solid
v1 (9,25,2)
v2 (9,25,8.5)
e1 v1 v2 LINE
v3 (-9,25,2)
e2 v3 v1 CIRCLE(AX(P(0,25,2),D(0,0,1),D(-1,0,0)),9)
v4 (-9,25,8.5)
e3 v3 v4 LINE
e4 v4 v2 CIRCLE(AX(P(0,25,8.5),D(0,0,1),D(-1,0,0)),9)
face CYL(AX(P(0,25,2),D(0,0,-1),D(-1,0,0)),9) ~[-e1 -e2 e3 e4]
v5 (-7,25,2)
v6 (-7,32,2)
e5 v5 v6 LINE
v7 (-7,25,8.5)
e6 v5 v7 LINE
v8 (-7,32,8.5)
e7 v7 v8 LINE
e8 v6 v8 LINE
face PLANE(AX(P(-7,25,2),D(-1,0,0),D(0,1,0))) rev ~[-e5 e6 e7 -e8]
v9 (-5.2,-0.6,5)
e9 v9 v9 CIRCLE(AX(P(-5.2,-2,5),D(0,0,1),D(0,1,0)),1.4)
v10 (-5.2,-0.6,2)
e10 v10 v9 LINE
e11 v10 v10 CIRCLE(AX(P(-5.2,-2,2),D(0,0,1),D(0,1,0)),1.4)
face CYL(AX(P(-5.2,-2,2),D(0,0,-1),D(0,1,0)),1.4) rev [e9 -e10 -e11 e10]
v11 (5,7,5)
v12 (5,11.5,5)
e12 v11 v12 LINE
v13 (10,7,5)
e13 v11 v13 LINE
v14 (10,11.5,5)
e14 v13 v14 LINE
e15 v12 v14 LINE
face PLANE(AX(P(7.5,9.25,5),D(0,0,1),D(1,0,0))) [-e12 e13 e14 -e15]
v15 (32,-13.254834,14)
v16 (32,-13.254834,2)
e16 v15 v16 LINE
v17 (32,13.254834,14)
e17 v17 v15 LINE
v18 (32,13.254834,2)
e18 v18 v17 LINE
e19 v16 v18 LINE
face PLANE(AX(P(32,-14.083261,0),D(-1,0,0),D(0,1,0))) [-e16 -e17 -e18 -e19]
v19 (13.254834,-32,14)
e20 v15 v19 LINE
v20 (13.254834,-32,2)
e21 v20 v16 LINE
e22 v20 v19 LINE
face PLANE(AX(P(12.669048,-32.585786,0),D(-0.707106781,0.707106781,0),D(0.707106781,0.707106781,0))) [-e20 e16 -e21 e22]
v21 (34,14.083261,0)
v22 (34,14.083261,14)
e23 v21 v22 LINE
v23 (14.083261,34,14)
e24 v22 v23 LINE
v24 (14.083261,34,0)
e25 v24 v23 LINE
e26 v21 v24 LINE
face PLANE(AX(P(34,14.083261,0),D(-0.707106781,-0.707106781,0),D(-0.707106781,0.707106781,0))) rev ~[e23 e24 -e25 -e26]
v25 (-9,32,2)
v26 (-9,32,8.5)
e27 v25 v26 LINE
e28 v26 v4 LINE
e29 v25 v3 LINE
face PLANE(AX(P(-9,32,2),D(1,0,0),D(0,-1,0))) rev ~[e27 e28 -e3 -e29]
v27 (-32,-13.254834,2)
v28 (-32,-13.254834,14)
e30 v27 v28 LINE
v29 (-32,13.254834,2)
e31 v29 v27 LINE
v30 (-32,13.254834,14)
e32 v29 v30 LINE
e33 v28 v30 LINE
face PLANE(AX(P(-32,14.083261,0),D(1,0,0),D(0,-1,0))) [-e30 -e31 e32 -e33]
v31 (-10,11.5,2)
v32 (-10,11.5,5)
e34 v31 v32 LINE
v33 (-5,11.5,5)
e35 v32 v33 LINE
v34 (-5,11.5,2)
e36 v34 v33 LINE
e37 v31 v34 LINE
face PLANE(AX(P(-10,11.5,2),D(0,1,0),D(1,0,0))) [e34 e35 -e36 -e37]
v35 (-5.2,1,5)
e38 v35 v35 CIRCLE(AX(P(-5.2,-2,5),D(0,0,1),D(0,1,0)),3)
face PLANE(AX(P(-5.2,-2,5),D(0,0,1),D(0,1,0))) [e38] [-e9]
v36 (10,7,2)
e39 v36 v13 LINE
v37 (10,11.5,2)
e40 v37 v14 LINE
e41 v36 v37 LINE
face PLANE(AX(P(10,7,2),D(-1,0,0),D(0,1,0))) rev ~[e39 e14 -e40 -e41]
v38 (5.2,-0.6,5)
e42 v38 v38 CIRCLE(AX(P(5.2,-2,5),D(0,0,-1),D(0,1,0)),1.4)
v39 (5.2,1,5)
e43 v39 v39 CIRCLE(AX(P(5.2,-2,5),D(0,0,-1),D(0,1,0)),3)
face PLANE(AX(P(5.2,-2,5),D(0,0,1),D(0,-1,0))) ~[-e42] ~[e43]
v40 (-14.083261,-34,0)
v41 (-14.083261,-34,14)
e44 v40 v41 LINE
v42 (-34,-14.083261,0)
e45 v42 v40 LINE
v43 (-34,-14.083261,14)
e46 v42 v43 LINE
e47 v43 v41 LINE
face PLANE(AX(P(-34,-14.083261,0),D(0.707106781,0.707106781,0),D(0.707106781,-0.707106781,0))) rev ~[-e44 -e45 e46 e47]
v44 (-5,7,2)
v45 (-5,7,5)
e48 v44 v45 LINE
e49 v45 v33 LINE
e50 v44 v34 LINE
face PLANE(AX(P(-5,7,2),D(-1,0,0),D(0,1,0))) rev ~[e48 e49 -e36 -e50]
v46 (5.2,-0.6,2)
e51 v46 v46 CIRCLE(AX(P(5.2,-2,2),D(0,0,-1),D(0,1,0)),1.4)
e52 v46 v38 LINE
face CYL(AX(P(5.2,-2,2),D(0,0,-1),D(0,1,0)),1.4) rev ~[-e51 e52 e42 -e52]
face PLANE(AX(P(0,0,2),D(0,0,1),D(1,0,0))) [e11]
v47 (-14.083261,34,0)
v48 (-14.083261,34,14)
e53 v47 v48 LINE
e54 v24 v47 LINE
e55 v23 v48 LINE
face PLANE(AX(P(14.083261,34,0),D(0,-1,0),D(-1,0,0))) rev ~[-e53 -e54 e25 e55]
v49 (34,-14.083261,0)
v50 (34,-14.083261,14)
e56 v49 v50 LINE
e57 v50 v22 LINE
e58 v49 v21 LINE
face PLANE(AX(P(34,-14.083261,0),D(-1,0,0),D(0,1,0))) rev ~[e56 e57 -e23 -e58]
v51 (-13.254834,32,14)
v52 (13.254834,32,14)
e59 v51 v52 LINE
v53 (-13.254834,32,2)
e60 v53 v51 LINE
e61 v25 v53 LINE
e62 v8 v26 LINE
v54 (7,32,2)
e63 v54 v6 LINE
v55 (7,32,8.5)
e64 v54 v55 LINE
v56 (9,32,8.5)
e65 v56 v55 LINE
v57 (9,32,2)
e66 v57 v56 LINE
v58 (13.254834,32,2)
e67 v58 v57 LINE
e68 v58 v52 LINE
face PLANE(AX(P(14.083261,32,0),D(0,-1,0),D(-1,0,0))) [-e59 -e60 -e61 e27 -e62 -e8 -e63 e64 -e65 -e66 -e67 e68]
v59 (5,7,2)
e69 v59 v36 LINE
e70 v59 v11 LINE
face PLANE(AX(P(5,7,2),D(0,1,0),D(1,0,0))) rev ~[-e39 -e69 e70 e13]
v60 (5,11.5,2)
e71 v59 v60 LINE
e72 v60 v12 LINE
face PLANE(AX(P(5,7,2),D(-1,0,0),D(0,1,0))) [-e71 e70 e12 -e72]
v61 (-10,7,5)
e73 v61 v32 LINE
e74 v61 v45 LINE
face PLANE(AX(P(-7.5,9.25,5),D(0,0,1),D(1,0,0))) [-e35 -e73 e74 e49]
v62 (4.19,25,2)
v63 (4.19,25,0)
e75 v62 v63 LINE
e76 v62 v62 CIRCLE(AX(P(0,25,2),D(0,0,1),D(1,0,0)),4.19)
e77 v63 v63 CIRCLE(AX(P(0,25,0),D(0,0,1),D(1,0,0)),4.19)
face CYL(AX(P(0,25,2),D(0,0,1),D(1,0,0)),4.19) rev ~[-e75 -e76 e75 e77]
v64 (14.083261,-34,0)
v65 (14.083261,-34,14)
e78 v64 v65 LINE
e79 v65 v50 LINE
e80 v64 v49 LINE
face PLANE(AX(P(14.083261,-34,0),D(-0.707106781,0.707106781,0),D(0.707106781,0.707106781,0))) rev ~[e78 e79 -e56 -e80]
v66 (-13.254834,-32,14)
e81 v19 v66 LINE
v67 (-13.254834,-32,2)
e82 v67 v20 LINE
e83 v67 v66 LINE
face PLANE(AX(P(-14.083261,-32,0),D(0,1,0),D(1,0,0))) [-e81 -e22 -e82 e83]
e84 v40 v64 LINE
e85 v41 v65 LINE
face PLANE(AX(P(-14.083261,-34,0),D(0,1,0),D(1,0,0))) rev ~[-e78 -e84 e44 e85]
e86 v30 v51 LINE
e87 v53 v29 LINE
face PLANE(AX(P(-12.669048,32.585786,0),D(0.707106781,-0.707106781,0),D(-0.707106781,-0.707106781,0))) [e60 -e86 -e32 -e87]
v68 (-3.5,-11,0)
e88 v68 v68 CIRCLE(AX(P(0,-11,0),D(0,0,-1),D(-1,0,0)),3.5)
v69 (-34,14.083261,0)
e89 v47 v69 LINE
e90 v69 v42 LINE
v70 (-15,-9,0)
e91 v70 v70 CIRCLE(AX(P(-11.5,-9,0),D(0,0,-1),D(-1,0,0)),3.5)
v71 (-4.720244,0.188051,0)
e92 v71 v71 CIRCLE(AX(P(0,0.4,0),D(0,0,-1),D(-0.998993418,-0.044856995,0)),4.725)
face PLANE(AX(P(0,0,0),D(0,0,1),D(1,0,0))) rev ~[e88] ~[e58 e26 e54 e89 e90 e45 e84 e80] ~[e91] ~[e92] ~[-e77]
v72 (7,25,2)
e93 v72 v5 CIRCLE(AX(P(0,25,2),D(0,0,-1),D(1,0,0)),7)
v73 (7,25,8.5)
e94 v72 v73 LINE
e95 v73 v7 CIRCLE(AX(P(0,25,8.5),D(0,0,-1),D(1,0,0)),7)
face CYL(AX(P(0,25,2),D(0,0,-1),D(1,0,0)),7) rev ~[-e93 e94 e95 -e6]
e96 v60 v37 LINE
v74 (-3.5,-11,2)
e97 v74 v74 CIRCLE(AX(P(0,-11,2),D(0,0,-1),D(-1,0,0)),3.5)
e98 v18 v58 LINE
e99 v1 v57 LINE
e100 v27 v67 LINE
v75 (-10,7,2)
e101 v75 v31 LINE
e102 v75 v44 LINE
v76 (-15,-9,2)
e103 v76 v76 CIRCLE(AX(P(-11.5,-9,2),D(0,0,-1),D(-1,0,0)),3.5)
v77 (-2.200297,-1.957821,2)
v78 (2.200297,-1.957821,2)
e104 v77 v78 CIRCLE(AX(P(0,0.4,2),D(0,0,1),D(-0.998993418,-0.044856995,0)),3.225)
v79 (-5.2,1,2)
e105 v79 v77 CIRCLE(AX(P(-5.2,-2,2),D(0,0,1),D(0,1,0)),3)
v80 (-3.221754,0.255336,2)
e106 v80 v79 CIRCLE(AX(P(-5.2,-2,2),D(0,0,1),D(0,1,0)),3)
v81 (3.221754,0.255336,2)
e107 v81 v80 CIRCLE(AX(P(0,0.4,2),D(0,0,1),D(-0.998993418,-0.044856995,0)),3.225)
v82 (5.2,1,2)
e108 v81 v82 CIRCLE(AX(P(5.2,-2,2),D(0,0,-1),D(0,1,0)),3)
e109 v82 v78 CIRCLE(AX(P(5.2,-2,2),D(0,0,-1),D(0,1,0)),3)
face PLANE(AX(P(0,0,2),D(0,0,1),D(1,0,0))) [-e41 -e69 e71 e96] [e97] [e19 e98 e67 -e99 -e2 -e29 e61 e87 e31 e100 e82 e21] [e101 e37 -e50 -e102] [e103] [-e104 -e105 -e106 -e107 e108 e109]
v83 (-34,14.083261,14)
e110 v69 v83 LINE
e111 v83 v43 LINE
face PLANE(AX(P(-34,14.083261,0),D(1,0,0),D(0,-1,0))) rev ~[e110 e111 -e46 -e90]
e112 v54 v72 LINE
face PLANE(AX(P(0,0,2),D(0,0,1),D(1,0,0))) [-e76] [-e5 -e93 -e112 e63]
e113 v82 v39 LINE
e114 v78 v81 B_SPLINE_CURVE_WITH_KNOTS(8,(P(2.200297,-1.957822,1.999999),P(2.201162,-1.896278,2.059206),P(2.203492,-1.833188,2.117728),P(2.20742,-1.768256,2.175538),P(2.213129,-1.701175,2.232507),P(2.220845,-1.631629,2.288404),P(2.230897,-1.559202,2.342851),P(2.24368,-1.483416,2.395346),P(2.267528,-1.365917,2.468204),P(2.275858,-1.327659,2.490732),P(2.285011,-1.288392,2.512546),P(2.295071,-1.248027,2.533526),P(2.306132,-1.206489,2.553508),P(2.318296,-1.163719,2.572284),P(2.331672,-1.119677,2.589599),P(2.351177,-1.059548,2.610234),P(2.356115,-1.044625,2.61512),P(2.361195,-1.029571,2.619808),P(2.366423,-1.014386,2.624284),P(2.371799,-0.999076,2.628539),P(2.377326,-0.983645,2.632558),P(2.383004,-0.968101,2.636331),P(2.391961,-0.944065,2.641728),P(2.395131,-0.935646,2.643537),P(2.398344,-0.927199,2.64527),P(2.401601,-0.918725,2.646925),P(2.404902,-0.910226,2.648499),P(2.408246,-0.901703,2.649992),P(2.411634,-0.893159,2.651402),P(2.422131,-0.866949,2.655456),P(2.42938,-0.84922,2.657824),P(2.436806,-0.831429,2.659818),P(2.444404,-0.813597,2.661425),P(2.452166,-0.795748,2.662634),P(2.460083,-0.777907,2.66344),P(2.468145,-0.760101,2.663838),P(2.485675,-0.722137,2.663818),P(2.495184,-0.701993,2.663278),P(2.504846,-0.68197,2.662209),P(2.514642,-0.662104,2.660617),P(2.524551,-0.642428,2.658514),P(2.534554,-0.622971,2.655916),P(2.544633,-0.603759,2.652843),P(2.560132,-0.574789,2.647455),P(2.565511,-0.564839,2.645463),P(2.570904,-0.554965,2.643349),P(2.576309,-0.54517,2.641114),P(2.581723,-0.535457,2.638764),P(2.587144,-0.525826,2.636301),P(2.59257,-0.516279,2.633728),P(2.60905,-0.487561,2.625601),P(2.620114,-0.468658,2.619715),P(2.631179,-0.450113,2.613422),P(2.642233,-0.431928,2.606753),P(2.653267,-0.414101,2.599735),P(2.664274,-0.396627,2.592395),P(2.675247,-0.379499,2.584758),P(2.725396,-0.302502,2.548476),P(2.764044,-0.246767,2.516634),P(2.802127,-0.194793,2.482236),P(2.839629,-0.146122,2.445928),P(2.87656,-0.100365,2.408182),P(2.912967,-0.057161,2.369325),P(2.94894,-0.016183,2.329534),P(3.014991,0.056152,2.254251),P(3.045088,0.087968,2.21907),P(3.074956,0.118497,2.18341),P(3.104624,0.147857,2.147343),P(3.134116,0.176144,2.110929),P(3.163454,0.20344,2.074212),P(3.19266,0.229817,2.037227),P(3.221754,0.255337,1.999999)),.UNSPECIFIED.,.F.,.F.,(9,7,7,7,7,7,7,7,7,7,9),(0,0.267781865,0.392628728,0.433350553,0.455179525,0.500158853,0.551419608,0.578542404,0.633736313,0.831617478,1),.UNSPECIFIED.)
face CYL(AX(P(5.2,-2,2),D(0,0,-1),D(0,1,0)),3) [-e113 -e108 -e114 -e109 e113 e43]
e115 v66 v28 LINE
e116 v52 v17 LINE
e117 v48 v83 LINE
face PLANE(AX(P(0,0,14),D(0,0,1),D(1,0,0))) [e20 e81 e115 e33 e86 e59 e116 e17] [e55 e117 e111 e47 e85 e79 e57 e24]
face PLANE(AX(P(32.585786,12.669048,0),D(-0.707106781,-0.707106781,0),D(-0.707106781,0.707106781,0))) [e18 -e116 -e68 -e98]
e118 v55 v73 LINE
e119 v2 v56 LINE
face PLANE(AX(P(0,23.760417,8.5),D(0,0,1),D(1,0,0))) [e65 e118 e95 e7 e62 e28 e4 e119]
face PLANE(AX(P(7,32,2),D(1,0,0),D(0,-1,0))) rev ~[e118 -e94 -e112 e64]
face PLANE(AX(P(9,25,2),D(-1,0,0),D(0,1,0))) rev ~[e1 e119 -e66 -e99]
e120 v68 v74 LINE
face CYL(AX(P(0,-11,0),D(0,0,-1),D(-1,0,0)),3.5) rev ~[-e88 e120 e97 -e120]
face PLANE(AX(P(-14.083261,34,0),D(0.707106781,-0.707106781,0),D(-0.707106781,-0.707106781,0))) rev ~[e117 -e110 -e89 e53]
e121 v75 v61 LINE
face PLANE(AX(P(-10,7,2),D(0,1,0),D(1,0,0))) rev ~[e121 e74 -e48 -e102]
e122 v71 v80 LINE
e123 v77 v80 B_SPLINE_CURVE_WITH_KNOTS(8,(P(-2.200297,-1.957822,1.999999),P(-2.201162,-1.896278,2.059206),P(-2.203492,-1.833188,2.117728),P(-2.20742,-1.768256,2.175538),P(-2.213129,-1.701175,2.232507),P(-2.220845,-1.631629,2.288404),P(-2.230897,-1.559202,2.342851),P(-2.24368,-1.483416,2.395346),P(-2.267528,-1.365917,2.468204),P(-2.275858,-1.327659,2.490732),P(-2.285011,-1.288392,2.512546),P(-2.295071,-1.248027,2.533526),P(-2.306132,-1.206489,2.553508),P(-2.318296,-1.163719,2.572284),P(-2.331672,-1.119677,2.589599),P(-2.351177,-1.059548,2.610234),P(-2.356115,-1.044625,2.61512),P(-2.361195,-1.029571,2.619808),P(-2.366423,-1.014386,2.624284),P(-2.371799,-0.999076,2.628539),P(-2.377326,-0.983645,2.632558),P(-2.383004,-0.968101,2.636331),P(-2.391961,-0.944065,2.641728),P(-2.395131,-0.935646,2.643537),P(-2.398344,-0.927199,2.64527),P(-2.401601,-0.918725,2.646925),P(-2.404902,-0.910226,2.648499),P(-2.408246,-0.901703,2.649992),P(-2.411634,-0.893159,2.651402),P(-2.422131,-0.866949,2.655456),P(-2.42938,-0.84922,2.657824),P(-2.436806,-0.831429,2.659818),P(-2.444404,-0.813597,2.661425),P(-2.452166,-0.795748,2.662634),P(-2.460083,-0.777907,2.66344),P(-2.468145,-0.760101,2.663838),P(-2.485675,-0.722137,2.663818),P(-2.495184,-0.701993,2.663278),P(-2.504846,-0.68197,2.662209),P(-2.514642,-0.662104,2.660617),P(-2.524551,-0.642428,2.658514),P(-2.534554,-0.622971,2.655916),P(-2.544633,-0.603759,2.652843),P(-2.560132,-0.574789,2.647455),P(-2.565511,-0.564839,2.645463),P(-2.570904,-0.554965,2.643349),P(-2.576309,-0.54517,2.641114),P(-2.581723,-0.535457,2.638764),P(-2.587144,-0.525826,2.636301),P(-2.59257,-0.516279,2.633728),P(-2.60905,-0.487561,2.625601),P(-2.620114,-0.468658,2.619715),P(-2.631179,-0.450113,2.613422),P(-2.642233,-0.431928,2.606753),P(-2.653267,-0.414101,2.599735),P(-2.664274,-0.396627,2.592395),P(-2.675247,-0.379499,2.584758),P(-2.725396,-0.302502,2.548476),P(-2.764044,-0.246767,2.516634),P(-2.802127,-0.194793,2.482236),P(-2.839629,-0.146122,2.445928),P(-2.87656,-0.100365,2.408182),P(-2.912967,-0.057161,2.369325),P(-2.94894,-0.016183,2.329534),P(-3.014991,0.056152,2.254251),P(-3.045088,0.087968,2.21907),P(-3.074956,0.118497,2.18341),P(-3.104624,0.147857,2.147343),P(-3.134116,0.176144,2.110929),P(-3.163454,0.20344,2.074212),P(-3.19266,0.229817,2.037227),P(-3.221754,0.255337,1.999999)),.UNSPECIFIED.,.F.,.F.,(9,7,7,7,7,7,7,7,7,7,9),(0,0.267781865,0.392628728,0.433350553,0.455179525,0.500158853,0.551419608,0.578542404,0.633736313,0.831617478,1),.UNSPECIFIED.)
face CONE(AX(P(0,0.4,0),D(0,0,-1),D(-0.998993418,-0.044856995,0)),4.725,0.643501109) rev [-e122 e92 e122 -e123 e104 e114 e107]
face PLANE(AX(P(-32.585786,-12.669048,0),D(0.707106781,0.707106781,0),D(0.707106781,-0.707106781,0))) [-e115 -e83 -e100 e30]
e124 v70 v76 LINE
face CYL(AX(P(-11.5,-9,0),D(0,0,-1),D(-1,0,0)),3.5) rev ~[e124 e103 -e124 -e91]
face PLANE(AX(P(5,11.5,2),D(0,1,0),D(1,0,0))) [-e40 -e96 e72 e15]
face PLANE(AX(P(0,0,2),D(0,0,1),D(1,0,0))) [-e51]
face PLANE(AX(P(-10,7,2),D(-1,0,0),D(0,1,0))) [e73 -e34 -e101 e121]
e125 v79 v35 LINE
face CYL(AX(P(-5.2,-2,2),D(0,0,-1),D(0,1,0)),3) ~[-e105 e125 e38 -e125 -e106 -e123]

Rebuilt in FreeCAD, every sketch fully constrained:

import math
import FreeCAD as App
import Part
import Sketcher

V = App.Vector


def faces_at(feature, points):
    """Names of the faces that lie closest to the given points."""
    faces = feature.Shape.Faces
    near = lambda p: min(range(len(faces)), key=lambda i: faces[i].distToShape(Part.Vertex(*p))[0])
    return sorted({f"Face{near(p) + 1}" for p in points})


def add_polygon(sketch, points):
    """Adds a closed chain of lines whose ends are joined by coincident constraints."""
    first, n = sketch.GeometryCount, len(points)
    for a, b in zip(points, points[1:] + points[:1]):
        sketch.addGeometry(Part.LineSegment(App.Vector(*a, 0), App.Vector(*b, 0)), False)
    for i in range(n):
        sketch.addConstraint(Sketcher.Constraint("Coincident", first + i, 2, first + (i + 1) % n, 1))

doc = App.newDocument("Part")
body = doc.addObject("PartDesign::Body", "Body")

sketch1 = body.newObject("Sketcher::SketchObject", "Sketch")
sketch1.AttachmentSupport = (doc.getObject("XY_Plane"), [""])
sketch1.MapMode = "FlatFace"
add_polygon(sketch1, [(34, -14.083261), (34, 14.083261), (14.083261, 34), (-14.083261, 34), (-34, 14.083261), (-34, -14.083261), (-14.083261, -34), (14.083261, -34)])
sketch1.addConstraint([
    Sketcher.Constraint("Vertical", 0),
    Sketcher.Constraint("Horizontal", 2),
    Sketcher.Constraint("Vertical", 4),
    Sketcher.Constraint("Horizontal", 6),
    Sketcher.Constraint("Symmetric", 0, 2, 4, 2, -1, 1),
    Sketcher.Constraint("Symmetric", 1, 2, 5, 2, -1, 1),
    Sketcher.Constraint("Perpendicular", 1, 3),
    Sketcher.Constraint("Perpendicular", 5, 7),
    Sketcher.Constraint("Horizontal", 0, 2, 3, 2),
    Sketcher.Constraint("Horizontal", 4, 2, 7, 2),
    Sketcher.Constraint("Vertical", 2, 2, 5, 2),
    Sketcher.Constraint("Equal", 6, 0),
    Sketcher.Constraint("DistanceX", -1, 1, 0, 2, 34.0),
    Sketcher.Constraint("DistanceX", 2, 2, 2, 1, 28.166522),
])
pad1 = body.newObject("PartDesign::Pad", "Pad")
pad1.Profile = sketch1
pad1.Length = 14
doc.recompute()

thickness = body.newObject("PartDesign::Thickness", "Thickness")
thickness.Base = (pad1, faces_at(pad1, [(0, 0, 14)]))
thickness.Value = 2
thickness.Reversed = True
thickness.Join = "Intersection"

sketch2 = body.newObject("Sketcher::SketchObject", "Sketch001")
sketch2.AttachmentSupport = (doc.getObject("XY_Plane"), [""])
sketch2.MapMode = "FlatFace"
sketch2.AttachmentOffset = App.Placement(V(0, 0, 2), App.Rotation())
sketch2.addGeometry([
    Part.LineSegment(V(7, 32, 0), V(7, 25, 0)),
    Part.ArcOfCircle(Part.Circle(V(0, 25, 0), V(0, 0, 1), 7), math.radians(180), math.radians(360)),
    Part.LineSegment(V(-7, 25, 0), V(-7, 32, 0)),
    Part.LineSegment(V(-7, 32, 0), V(-9, 32, 0)),
    Part.LineSegment(V(-9, 32, 0), V(-9, 25, 0)),
    Part.ArcOfCircle(Part.Circle(V(0, 25, 0), V(0, 0, 1), 9), math.radians(180), math.radians(360)),
    Part.LineSegment(V(9, 25, 0), V(9, 32, 0)),
    Part.LineSegment(V(9, 32, 0), V(7, 32, 0)),
], False)
sketch2.addConstraint([
    Sketcher.Constraint("Tangent", 0, 2, 1, 2),
    Sketcher.Constraint("Tangent", 1, 1, 2, 1),
    Sketcher.Constraint("Coincident", 2, 2, 3, 1),
    Sketcher.Constraint("Coincident", 3, 2, 4, 1),
    Sketcher.Constraint("Tangent", 4, 2, 5, 1),
    Sketcher.Constraint("Tangent", 5, 2, 6, 1),
    Sketcher.Constraint("Coincident", 6, 2, 7, 1),
    Sketcher.Constraint("Coincident", 7, 2, 0, 1),
    Sketcher.Constraint("Vertical", 0),
    Sketcher.Constraint("Vertical", 2),
    Sketcher.Constraint("Horizontal", 3),
    Sketcher.Constraint("Vertical", 4),
    Sketcher.Constraint("Vertical", 6),
    Sketcher.Constraint("Horizontal", 7),
    Sketcher.Constraint("Coincident", 5, 3, 1, 3),
    Sketcher.Constraint("Symmetric", 3, 2, 6, 2, -2),
    Sketcher.Constraint("Radius", 1, 7.0),
    Sketcher.Constraint("Radius", 5, 9.0),
    Sketcher.Constraint("DistanceY", 0, 2, 0, 1, 7.0),
    Sketcher.Constraint("DistanceY", -1, 1, 1, 3, 25.0),
])
pad2 = body.newObject("PartDesign::Pad", "Pad001")
pad2.Profile = sketch2
pad2.Length = 6.5

sketch3 = body.newObject("Sketcher::SketchObject", "Sketch002")
sketch3.AttachmentSupport = (doc.getObject("XY_Plane"), [""])
sketch3.MapMode = "FlatFace"
sketch3.AttachmentOffset = App.Placement(V(0, 0, 2), App.Rotation())
sketch3.addGeometry(Part.Circle(V(0, 25, 0), V(0, 0, 1), 4.19), False)
sketch3.addConstraint([
    Sketcher.Constraint("PointOnObject", 0, 3, -2),
    Sketcher.Constraint("Diameter", 0, 8.38),
    Sketcher.Constraint("DistanceY", -1, 1, 0, 3, 25.0),
])
pocket1 = body.newObject("PartDesign::Pocket", "Pocket")
pocket1.Profile = sketch3
pocket1.Type = "ThroughAll"

sketch4 = body.newObject("Sketcher::SketchObject", "Sketch003")
sketch4.AttachmentSupport = (doc.getObject("XY_Plane"), [""])
sketch4.MapMode = "FlatFace"
sketch4.AttachmentOffset = App.Placement(V(0, 0, 2), App.Rotation())
sketch4.addGeometry([
    Part.Circle(V(-5.2, -2, 0), V(0, 0, 1), 3),
    Part.Circle(V(-5.2, -2, 0), V(0, 0, 1), 1.4),
], False)
sketch4.addConstraint([
    Sketcher.Constraint("Coincident", 1, 3, 0, 3),
    Sketcher.Constraint("Diameter", 0, 6.0),
    Sketcher.Constraint("Diameter", 1, 2.8),
    Sketcher.Constraint("DistanceY", 0, 3, -1, 1, 2.0),
    Sketcher.Constraint("DistanceX", 0, 3, -1, 1, 5.2),
])
pad3 = body.newObject("PartDesign::Pad", "Pad002")
pad3.Profile = sketch4
pad3.Length = 3
doc.recompute()

mirrored = body.newObject("PartDesign::Mirrored", "Mirrored")
mirrored.Originals = [pad3]
mirrored.MirrorPlane = (doc.getObject("YZ_Plane"), [""])
body.Tip = mirrored

sketch5 = body.newObject("Sketcher::SketchObject", "Sketch004")
sketch5.AttachmentSupport = (doc.getObject("YZ_Plane"), [""])
sketch5.MapMode = "FlatFace"
add_polygon(sketch5, [(0.4, 0), (0.4, 6.3), (-4.325, 0)])
sketch5.addGeometry(Part.LineSegment(V(0.4, 6.3, 0), V(0.4, 0, 0)), True)
sketch5.addConstraint([
    Sketcher.Constraint("Vertical", 0),
    Sketcher.Constraint("Horizontal", 2),
    Sketcher.Constraint("Vertical", 3),
    Sketcher.Constraint("Coincident", 3, 1, 0, 2),
    Sketcher.Constraint("PointOnObject", 1, 2, -1),
    Sketcher.Constraint("PointOnObject", 3, 2, -1),
    Sketcher.Constraint("DistanceY", 0, 1, 0, 2, 6.3),
    Sketcher.Constraint("DistanceX", -1, 1, 0, 2, 0.4),
    Sketcher.Constraint("DistanceX", 2, 1, 2, 2, 4.725),
])
groove = body.newObject("PartDesign::Groove", "Groove")
groove.Profile = sketch5
groove.ReferenceAxis = (sketch5, ["Axis0"])
groove.Angle = 360

sketch6 = body.newObject("Sketcher::SketchObject", "Sketch005")
sketch6.AttachmentSupport = (doc.getObject("XY_Plane"), [""])
sketch6.MapMode = "FlatFace"
sketch6.AttachmentOffset = App.Placement(V(0, 0, 2), App.Rotation())
add_polygon(sketch6, [(-10, 11.5), (-10, 7), (-5, 7), (-5, 11.5)])
add_polygon(sketch6, [(5, 11.5), (5, 7), (10, 7), (10, 11.5)])
sketch6.addConstraint([
    Sketcher.Constraint("Vertical", 0),
    Sketcher.Constraint("Horizontal", 1),
    Sketcher.Constraint("Vertical", 2),
    Sketcher.Constraint("Horizontal", 3),
    Sketcher.Constraint("Vertical", 4),
    Sketcher.Constraint("Horizontal", 5),
    Sketcher.Constraint("Vertical", 6),
    Sketcher.Constraint("Horizontal", 7),
    Sketcher.Constraint("Symmetric", 1, 2, 4, 2, -2),
    Sketcher.Constraint("Symmetric", 3, 2, 6, 2, -2),
    Sketcher.Constraint("DistanceX", 1, 1, 1, 2, 5.0),
    Sketcher.Constraint("DistanceY", 0, 2, 0, 1, 4.5),
    Sketcher.Constraint("DistanceX", 0, 2, -1, 1, 10.0),
    Sketcher.Constraint("DistanceY", -1, 1, 0, 2, 7.0),
])
pad4 = body.newObject("PartDesign::Pad", "Pad003")
pad4.Profile = sketch6
pad4.Length = 3

sketch7 = body.newObject("Sketcher::SketchObject", "Sketch006")
sketch7.AttachmentSupport = (doc.getObject("XY_Plane"), [""])
sketch7.MapMode = "FlatFace"
sketch7.addGeometry([
    Part.Circle(V(-11.5, -9, 0), V(0, 0, 1), 3.5),
    Part.Circle(V(0, -11, 0), V(0, 0, 1), 3.5),
], False)
sketch7.addConstraint([
    Sketcher.Constraint("Equal", 0, 1),
    Sketcher.Constraint("PointOnObject", 1, 3, -2),
    Sketcher.Constraint("Diameter", 0, 7.0),
    Sketcher.Constraint("DistanceY", 0, 3, -1, 1, 9.0),
    Sketcher.Constraint("DistanceY", 1, 3, -1, 1, 11.0),
    Sketcher.Constraint("DistanceX", 0, 3, -1, 1, 11.5),
])
pocket2 = body.newObject("PartDesign::Pocket", "Pocket001")
pocket2.Profile = sketch7
pocket2.Type = "ThroughAll"
pocket2.Reversed = True

doc.recompute()
